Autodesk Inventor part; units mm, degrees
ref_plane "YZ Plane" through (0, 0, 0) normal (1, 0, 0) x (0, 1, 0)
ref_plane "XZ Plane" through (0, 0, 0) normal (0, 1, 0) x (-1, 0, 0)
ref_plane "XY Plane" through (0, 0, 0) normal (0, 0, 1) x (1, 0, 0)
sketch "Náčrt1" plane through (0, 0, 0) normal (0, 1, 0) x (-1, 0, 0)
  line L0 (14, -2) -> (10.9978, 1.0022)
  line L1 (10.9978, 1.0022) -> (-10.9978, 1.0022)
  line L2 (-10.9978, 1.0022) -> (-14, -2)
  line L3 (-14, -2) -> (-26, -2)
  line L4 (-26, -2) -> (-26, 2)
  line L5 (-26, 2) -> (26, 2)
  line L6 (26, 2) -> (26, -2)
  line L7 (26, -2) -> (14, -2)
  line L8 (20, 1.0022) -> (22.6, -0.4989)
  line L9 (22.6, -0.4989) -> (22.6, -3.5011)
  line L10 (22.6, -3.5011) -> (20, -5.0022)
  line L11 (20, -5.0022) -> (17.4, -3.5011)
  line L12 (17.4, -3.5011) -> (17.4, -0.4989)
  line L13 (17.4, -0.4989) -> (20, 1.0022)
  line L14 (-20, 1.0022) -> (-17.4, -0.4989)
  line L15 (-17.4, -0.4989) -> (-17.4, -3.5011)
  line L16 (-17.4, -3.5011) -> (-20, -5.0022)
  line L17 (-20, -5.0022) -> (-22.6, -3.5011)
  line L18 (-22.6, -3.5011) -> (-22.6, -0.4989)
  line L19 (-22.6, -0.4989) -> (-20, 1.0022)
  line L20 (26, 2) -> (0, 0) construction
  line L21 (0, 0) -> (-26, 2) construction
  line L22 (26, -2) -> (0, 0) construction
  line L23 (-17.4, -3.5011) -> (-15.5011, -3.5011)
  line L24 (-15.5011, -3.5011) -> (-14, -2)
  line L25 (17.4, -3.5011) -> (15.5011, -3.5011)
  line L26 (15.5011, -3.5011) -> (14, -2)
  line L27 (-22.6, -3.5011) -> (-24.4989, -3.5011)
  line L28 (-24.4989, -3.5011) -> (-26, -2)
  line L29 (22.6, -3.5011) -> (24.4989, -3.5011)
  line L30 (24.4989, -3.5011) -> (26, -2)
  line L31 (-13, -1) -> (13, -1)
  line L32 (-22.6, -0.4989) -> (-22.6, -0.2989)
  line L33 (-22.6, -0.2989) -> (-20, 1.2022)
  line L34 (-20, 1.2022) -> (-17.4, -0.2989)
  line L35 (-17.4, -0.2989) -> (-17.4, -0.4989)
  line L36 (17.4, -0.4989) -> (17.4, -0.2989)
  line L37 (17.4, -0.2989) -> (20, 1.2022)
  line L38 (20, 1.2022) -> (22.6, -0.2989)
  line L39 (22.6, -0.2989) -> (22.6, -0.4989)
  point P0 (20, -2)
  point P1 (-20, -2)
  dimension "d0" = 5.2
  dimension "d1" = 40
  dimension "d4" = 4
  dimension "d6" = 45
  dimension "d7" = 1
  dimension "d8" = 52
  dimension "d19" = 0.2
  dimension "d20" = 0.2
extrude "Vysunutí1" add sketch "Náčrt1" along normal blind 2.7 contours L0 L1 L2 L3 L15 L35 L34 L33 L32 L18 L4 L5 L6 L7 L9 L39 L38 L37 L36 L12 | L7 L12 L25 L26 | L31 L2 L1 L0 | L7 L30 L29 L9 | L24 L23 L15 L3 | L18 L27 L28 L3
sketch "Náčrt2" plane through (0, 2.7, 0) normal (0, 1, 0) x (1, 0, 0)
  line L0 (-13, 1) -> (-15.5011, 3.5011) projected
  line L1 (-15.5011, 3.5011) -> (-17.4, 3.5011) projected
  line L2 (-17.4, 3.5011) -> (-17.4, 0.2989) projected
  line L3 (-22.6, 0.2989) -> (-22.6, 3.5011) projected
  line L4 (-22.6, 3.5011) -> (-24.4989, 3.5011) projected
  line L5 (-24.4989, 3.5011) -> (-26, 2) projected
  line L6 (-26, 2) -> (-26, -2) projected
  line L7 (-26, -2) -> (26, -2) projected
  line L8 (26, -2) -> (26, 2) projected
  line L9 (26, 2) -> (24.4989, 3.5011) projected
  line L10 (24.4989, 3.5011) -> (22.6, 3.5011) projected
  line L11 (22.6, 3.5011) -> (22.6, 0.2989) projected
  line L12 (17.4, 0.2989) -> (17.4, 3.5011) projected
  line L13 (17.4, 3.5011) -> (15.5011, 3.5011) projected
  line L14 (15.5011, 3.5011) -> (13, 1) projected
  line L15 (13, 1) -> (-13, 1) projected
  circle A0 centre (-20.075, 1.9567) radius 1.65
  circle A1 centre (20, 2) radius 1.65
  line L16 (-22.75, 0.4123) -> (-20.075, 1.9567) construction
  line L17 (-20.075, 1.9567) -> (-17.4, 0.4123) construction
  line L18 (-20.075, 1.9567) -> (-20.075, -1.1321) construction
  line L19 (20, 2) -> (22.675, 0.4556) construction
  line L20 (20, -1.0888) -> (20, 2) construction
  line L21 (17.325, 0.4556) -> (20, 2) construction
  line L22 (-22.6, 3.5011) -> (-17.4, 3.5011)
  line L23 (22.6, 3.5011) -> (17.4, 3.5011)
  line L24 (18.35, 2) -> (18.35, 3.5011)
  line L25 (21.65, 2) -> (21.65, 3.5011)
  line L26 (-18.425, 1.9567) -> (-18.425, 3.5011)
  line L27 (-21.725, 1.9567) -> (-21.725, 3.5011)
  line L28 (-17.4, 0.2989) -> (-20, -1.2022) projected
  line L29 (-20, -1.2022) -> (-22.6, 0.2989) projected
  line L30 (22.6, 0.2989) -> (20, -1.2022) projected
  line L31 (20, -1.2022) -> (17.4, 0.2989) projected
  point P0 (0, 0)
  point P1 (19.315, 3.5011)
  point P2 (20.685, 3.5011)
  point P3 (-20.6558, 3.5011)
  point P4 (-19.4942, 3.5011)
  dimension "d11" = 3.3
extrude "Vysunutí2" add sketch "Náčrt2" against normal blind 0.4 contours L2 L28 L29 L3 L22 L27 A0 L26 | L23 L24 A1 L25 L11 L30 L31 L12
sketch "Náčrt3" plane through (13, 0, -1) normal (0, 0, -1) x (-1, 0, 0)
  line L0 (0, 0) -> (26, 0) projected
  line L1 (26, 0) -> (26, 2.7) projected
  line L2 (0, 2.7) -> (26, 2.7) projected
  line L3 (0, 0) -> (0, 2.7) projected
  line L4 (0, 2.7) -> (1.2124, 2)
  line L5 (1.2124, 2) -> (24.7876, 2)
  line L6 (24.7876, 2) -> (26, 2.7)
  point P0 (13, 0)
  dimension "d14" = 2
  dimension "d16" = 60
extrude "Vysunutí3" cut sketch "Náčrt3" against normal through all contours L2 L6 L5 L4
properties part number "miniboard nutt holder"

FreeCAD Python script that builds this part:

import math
import FreeCAD as App
import Part
import Sketcher
from FreeCAD import Vector
Q = App.Units.Quantity

doc = App.newDocument("Part")
body = doc.addObject("PartDesign::Body", "Body")

# Sketch on XZ plane
sketch1 = body.newObject("Sketcher::SketchObject", "Sketch")
sketch1.AttachmentSupport = (doc.getObject("XZ_Plane"), [""])
sketch1.MapMode = "FlatFace"
sketch1.addGeometry([
    Part.LineSegment(Vector(-13, -1, 0), Vector(-15.5, -3.5, 0)),  # 0
    Part.LineSegment(Vector(-15.5, -3.5, 0), Vector(-17.4, -3.5, 0)),  # 1
    Part.LineSegment(Vector(-17.4, -3.5, 0), Vector(-17.4, -0.3, 0)),  # 2
    Part.LineSegment(Vector(-17.4, -0.3, 0), Vector(-20, 1.2, 0)),  # 3
    Part.LineSegment(Vector(-20, 1.2, 0), Vector(-22.6, -0.3, 0)),  # 4
    Part.LineSegment(Vector(-22.6, -0.3, 0), Vector(-22.6, -3.5, 0)),  # 5
    Part.LineSegment(Vector(-22.6, -3.5, 0), Vector(-24.5, -3.5, 0)),  # 6
    Part.LineSegment(Vector(-24.5, -3.5, 0), Vector(-26, -2, 0)),  # 7
    Part.LineSegment(Vector(-26, -2, 0), Vector(-26, 2, 0)),  # 8
    Part.LineSegment(Vector(-26, 2, 0), Vector(26, 2, 0)),  # 9
    Part.LineSegment(Vector(26, 2, 0), Vector(26, -2, 0)),  # 10
    Part.LineSegment(Vector(26, -2, 0), Vector(24.5, -3.5, 0)),  # 11
    Part.LineSegment(Vector(24.5, -3.5, 0), Vector(22.6, -3.5, 0)),  # 12
    Part.LineSegment(Vector(22.6, -3.5, 0), Vector(22.6, -0.3, 0)),  # 13
    Part.LineSegment(Vector(22.6, -0.3, 0), Vector(20, 1.2, 0)),  # 14
    Part.LineSegment(Vector(20, 1.2, 0), Vector(17.4, -0.3, 0)),  # 15
    Part.LineSegment(Vector(17.4, -0.3, 0), Vector(17.4, -3.5, 0)),  # 16
    Part.LineSegment(Vector(17.4, -3.5, 0), Vector(15.5, -3.5, 0)),  # 17
    Part.LineSegment(Vector(15.5, -3.5, 0), Vector(13, -1, 0)),  # 18
    Part.LineSegment(Vector(13, -1, 0), Vector(-13, -1, 0)),  # 19
], False)
sketch1.addConstraint([
    Sketcher.Constraint("Coincident", 0, 2, 1, 1),
    Sketcher.Constraint("Coincident", 1, 2, 2, 1),
    Sketcher.Constraint("Coincident", 2, 2, 3, 1),
    Sketcher.Constraint("Coincident", 3, 2, 4, 1),
    Sketcher.Constraint("Coincident", 4, 2, 5, 1),
    Sketcher.Constraint("Coincident", 5, 2, 6, 1),
    Sketcher.Constraint("Coincident", 6, 2, 7, 1),
    Sketcher.Constraint("Coincident", 7, 2, 8, 1),
    Sketcher.Constraint("Coincident", 8, 2, 9, 1),
    Sketcher.Constraint("Coincident", 9, 2, 10, 1),
    Sketcher.Constraint("Coincident", 10, 2, 11, 1),
    Sketcher.Constraint("Coincident", 11, 2, 12, 1),
    Sketcher.Constraint("Coincident", 12, 2, 13, 1),
    Sketcher.Constraint("Coincident", 13, 2, 14, 1),
    Sketcher.Constraint("Coincident", 14, 2, 15, 1),
    Sketcher.Constraint("Coincident", 15, 2, 16, 1),
    Sketcher.Constraint("Coincident", 16, 2, 17, 1),
    Sketcher.Constraint("Coincident", 17, 2, 18, 1),
    Sketcher.Constraint("Coincident", 18, 2, 19, 1),
    Sketcher.Constraint("Coincident", 19, 2, 0, 1),
    Sketcher.Constraint("Horizontal", 1),
    Sketcher.Constraint("Vertical", 2),
    Sketcher.Constraint("Vertical", 5),
    Sketcher.Constraint("Horizontal", 6),
    Sketcher.Constraint("Vertical", 8),
    Sketcher.Constraint("Horizontal", 9),
    Sketcher.Constraint("Vertical", 10),
    Sketcher.Constraint("Horizontal", 12),
    Sketcher.Constraint("Vertical", 13),
    Sketcher.Constraint("Vertical", 16),
    Sketcher.Constraint("Horizontal", 17),
    Sketcher.Constraint("Horizontal", 19),
    Sketcher.Constraint("Symmetric", 7, 2, 9, 2, -1, 1),
    Sketcher.Constraint("Symmetric", 6, 2, 11, 2, -2),
    Sketcher.Constraint("Symmetric", 4, 2, 13, 2, -2),
    Sketcher.Constraint("Symmetric", 3, 2, 14, 2, -2),
    Sketcher.Constraint("Symmetric", 2, 2, 15, 2, -2),
    Sketcher.Constraint("Symmetric", 0, 2, 17, 2, -2),
    Sketcher.Constraint("Perpendicular", 0, 7),
    Sketcher.Constraint("Perpendicular", 7, 11),
    Sketcher.Constraint("Parallel", 3, 14),
    Sketcher.Constraint("Perpendicular", 11, 18),
    Sketcher.Constraint("Horizontal", 2, 2, 4, 2),
    Sketcher.Constraint("Horizontal", 1, 2, 5, 2),
    Sketcher.Constraint("Horizontal", 7, 2, 10, 2),
    Sketcher.Constraint("Equal", 1, 6),
    Sketcher.Constraint("DistanceX", 9, 1, 9, 2, 52.0),
    Sketcher.Constraint("DistanceY", 8, 1, 8, 2, 4.0),
    Sketcher.Constraint("DistanceY", 18, 2, -1, 1, 1.0),
    Sketcher.Constraint("DistanceX", 0, 2, 11, 2, 40.0),
    Sketcher.Constraint("DistanceX", 4, 2, 2, 2, 5.2),
    Sketcher.Constraint("Angle", 3, Q("150.0002 deg")),
    Sketcher.Constraint("DistanceX", 1, 2, 1, 1, 1.899),
    Sketcher.Constraint("DistanceY", 2, 1, 2, 2, 3.2022),
])
pad1 = body.newObject("PartDesign::Pad", "Pad")
pad1.Profile = sketch1
pad1.Length = 2.7
pad1.Reversed = True

# Sketch on XZ plane
sketch2 = body.newObject("Sketcher::SketchObject", "Sketch001")
sketch2.AttachmentSupport = (doc.getObject("XZ_Plane"), [""])
sketch2.MapMode = "FlatFace"
sketch2.AttachmentOffset = App.Placement(Vector(0, 0, -2.7), App.Rotation())
sketch2.addGeometry([
    Part.LineSegment(Vector(-17.4, -0.3, 0), Vector(-17.4, -3.5, 0)),  # 0
    Part.LineSegment(Vector(-17.4, -3.5, 0), Vector(-18.4, -3.5, 0)),  # 1
    Part.LineSegment(Vector(-18.4, -3.5, 0), Vector(-18.4, -2, 0)),  # 2
    Part.ArcOfCircle(Part.Circle(Vector(-20.1, -2, 0), Vector(0, 0, 1), 1.6), math.radians(0), math.radians(180)),  # 3
    Part.LineSegment(Vector(-21.7, -2, 0), Vector(-21.7, -3.5, 0)),  # 4
    Part.LineSegment(Vector(-21.7, -3.5, 0), Vector(-22.6, -3.5, 0)),  # 5
    Part.LineSegment(Vector(-22.6, -3.5, 0), Vector(-22.6, -0.3, 0)),  # 6
    Part.LineSegment(Vector(-22.6, -0.3, 0), Vector(-20, 1.2, 0)),  # 7
    Part.LineSegment(Vector(-20, 1.2, 0), Vector(-17.4, -0.3, 0)),  # 8
    Part.LineSegment(Vector(18.4, -3.5, 0), Vector(17.4, -3.5, 0)),  # 9
    Part.LineSegment(Vector(17.4, -3.5, 0), Vector(17.4, -0.3, 0)),  # 10
    Part.LineSegment(Vector(17.4, -0.3, 0), Vector(20, 1.2, 0)),  # 11
    Part.LineSegment(Vector(20, 1.2, 0), Vector(22.6, -0.3, 0)),  # 12
    Part.LineSegment(Vector(22.6, -0.3, 0), Vector(22.6, -3.5, 0)),  # 13
    Part.LineSegment(Vector(22.6, -3.5, 0), Vector(21.6, -3.5, 0)),  # 14
    Part.LineSegment(Vector(21.6, -3.5, 0), Vector(21.6, -2, 0)),  # 15
    Part.ArcOfCircle(Part.Circle(Vector(20, -2, 0), Vector(0, 0, 1), 1.6), math.radians(0), math.radians(180)),  # 16
    Part.LineSegment(Vector(18.4, -2, 0), Vector(18.4, -3.5, 0)),  # 17
], False)
sketch2.addConstraint([
    Sketcher.Constraint("Coincident", 0, 2, 1, 1),
    Sketcher.Constraint("Coincident", 1, 2, 2, 1),
    Sketcher.Constraint("Tangent", 2, 2, 3, 1),
    Sketcher.Constraint("Tangent", 3, 2, 4, 1),
    Sketcher.Constraint("Coincident", 4, 2, 5, 1),
    Sketcher.Constraint("Coincident", 5, 2, 6, 1),
    Sketcher.Constraint("Coincident", 6, 2, 7, 1),
    Sketcher.Constraint("Coincident", 7, 2, 8, 1),
    Sketcher.Constraint("Coincident", 8, 2, 0, 1),
    Sketcher.Constraint("Coincident", 9, 2, 10, 1),
    Sketcher.Constraint("Coincident", 10, 2, 11, 1),
    Sketcher.Constraint("Coincident", 11, 2, 12, 1),
    Sketcher.Constraint("Coincident", 12, 2, 13, 1),
    Sketcher.Constraint("Coincident", 13, 2, 14, 1),
    Sketcher.Constraint("Coincident", 14, 2, 15, 1),
    Sketcher.Constraint("Tangent", 15, 2, 16, 1),
    Sketcher.Constraint("Tangent", 16, 2, 17, 1),
    Sketcher.Constraint("Coincident", 17, 2, 9, 1),
    Sketcher.Constraint("Vertical", 0),
    Sketcher.Constraint("Horizontal", 1),
    Sketcher.Constraint("Vertical", 2),
    Sketcher.Constraint("Vertical", 4),
    Sketcher.Constraint("Horizontal", 5),
    Sketcher.Constraint("Vertical", 6),
    Sketcher.Constraint("Horizontal", 9),
    Sketcher.Constraint("Vertical", 10),
    Sketcher.Constraint("Vertical", 13),
    Sketcher.Constraint("Horizontal", 14),
    Sketcher.Constraint("Vertical", 15),
    Sketcher.Constraint("Vertical", 17),
    Sketcher.Constraint("Equal", 3, 16),
    Sketcher.Constraint("Symmetric", 0, 2, 9, 2, -2),
    Sketcher.Constraint("Symmetric", 7, 2, 11, 2, -2),
    Sketcher.Constraint("Symmetric", 6, 2, 12, 2, -2),
    Sketcher.Constraint("Parallel", 7, 11),
    Sketcher.Constraint("Parallel", 8, 12),
    Sketcher.Constraint("Horizontal", 1, 2, 4, 2),
    Sketcher.Constraint("Horizontal", 6, 2, 8, 2),
    Sketcher.Constraint("Horizontal", 9, 2, 13, 2),
    Sketcher.Constraint("Vertical", 16, 3, 11, 2),
    Sketcher.Constraint("Radius", 3, 1.65),
    Sketcher.Constraint("Angle", 7, Q("29.9998 deg")),
    Sketcher.Constraint("DistanceX", -1, 1, 16, 3, 20.0),
    Sketcher.Constraint("DistanceY", 16, 3, -1, 1, 2.0),
    Sketcher.Constraint("DistanceX", 9, 2, 9, 1, 0.95),
    Sketcher.Constraint("DistanceX", 1, 2, 1, 1, 1.025),
    Sketcher.Constraint("DistanceY", 15, 1, 15, 2, 1.501),
    Sketcher.Constraint("DistanceY", 0, 2, 0, 1, 3.2022),
    Sketcher.Constraint("DistanceY", 2, 1, 2, 2, 1.5444),
])
pad2 = body.newObject("PartDesign::Pad", "Pad001")
pad2.Profile = sketch2
pad2.Length = 0.4

# Sketch on XY plane
sketch3 = body.newObject("Sketcher::SketchObject", "Sketch002")
sketch3.AttachmentSupport = (doc.getObject("XY_Plane"), [""])
sketch3.MapMode = "FlatFace"
sketch3.AttachmentOffset = App.Placement(Vector(0, 0, -1), App.Rotation())
sketch3.addGeometry([
    Part.LineSegment(Vector(-13, 2.7, 0), Vector(13, 2.7, 0)),
    Part.LineSegment(Vector(13, 2.7, 0), Vector(11.8, 2, 0)),
    Part.LineSegment(Vector(11.8, 2, 0), Vector(-11.8, 2, 0)),
    Part.LineSegment(Vector(-11.8, 2, 0), Vector(-13, 2.7, 0)),
], False)
sketch3.addConstraint([
    Sketcher.Constraint("Coincident", 0, 2, 1, 1),
    Sketcher.Constraint("Coincident", 1, 2, 2, 1),
    Sketcher.Constraint("Coincident", 2, 2, 3, 1),
    Sketcher.Constraint("Coincident", 3, 2, 0, 1),
    Sketcher.Constraint("Horizontal", 0),
    Sketcher.Constraint("Horizontal", 2),
    Sketcher.Constraint("Equal", 1, 3),
    Sketcher.Constraint("DistanceY", -1, 1, 1, 2, 2.0),
    Sketcher.Constraint("DistanceX", 0, 1, 0, 2, 26.0),
    Sketcher.Constraint("Angle", 1, Q("-149.9993 deg")),
    Sketcher.Constraint("DistanceX", -1, 1, 0, 2, 13.0),
    Sketcher.Constraint("Distance", 1, 1.4),
])
pocket1 = body.newObject("PartDesign::Pocket", "Pocket")
pocket1.Profile = sketch3
pocket1.Type = "ThroughAll"
pocket1.Reversed = True

doc.recompute()
